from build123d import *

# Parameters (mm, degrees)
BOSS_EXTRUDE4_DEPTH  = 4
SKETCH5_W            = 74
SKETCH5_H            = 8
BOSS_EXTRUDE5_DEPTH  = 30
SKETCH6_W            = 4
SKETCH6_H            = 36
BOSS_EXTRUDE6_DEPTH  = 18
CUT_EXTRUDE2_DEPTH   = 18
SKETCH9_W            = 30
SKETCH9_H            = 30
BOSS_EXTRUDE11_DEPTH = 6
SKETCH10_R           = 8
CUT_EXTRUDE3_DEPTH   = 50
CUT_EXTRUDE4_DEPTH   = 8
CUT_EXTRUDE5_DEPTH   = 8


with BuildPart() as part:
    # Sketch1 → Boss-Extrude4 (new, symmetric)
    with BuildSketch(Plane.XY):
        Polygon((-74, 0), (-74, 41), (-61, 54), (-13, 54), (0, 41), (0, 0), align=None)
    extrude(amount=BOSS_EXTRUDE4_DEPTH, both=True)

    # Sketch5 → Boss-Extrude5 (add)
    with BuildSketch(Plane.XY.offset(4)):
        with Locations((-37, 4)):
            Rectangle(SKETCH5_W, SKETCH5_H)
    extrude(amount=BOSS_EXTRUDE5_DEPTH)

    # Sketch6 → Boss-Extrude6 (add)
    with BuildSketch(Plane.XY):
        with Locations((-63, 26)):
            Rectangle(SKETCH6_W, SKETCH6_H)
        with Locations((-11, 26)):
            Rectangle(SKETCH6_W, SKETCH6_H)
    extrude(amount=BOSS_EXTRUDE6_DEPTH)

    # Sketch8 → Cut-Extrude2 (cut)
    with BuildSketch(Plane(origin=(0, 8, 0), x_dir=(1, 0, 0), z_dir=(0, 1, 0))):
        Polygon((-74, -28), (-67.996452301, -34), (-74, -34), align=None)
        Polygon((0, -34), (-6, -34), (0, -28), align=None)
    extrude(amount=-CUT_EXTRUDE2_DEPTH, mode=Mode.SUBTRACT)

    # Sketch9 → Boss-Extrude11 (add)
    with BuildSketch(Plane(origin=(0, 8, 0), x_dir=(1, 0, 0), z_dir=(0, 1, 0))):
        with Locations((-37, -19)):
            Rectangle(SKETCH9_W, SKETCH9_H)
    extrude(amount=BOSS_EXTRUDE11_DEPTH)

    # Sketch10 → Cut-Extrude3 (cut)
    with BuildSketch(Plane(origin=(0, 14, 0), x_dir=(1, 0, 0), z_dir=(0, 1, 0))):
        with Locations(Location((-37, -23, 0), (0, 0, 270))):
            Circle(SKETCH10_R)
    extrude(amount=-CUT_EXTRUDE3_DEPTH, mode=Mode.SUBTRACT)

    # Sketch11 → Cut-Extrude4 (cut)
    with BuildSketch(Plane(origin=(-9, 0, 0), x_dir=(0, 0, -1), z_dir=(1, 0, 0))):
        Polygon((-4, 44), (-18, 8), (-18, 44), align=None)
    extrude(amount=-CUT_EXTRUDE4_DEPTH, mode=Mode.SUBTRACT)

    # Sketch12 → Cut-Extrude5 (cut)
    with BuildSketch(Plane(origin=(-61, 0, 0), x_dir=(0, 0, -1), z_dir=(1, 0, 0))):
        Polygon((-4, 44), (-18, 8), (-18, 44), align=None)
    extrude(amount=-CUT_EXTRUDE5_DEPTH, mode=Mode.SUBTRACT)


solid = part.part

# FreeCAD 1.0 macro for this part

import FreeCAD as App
import Part
import Sketcher
Q = App.Units.Quantity


def add_polygon(sketch, points):
    """Adds a closed chain of lines whose ends are joined by coincident constraints."""
    first, n = sketch.GeometryCount, len(points)
    for a, b in zip(points, points[1:] + points[:1]):
        sketch.addGeometry(Part.LineSegment(App.Vector(*a, 0), App.Vector(*b, 0)), False)
    for i in range(n):
        sketch.addConstraint(Sketcher.Constraint("Coincident", first + i, 2, first + (i + 1) % n, 1))

doc = App.newDocument("Part")
body = doc.addObject("PartDesign::Body", "Body")

sketch1 = body.newObject("Sketcher::SketchObject", "Sketch")
sketch1.AttachmentSupport = (doc.getObject("XY_Plane"), [""])
sketch1.MapMode = "FlatFace"
add_polygon(sketch1, [(-74, 41), (-74, 0), (0, 0), (0, 41), (-13, 54), (-61, 54)])
sketch1.addConstraint(Sketcher.Constraint("Vertical", 0))
sketch1.addConstraint(Sketcher.Constraint("Horizontal", 1))
sketch1.addConstraint(Sketcher.Constraint("Vertical", 2))
sketch1.addConstraint(Sketcher.Constraint("Horizontal", 4))
sketch1.addConstraint(Sketcher.Constraint("Coincident", 1, 2, -1, 1))
sketch1.addConstraint(Sketcher.Constraint("Perpendicular", 3, 5))
sketch1.addConstraint(Sketcher.Constraint("Horizontal", 2, 2, 5, 2))
sketch1.addConstraint(Sketcher.Constraint("Equal", 3, 5))
sketch1.addConstraint(Sketcher.Constraint("DistanceX", 1, 1, 1, 2, Q("74 mm")))
sketch1.addConstraint(Sketcher.Constraint("DistanceX", 4, 2, 4, 1, Q("48 mm")))
sketch1.addConstraint(Sketcher.Constraint("DistanceY", 0, 2, 0, 1, Q("41 mm")))
pad1 = body.newObject("PartDesign::Pad", "Pad")
pad1.Profile = sketch1
pad1.Length = 8
pad1.Midplane = True

sketch2 = body.newObject("Sketcher::SketchObject", "Sketch001")
sketch2.AttachmentSupport = (doc.getObject("XY_Plane"), [""])
sketch2.MapMode = "FlatFace"
sketch2.AttachmentOffset = App.Placement(App.Vector(0, 0, 4), App.Rotation())
add_polygon(sketch2, [(-74, 8), (-74, 0), (0, 0), (0, 8)])
sketch2.addConstraint(Sketcher.Constraint("Vertical", 0))
sketch2.addConstraint(Sketcher.Constraint("Horizontal", 1))
sketch2.addConstraint(Sketcher.Constraint("Vertical", 2))
sketch2.addConstraint(Sketcher.Constraint("Horizontal", 3))
sketch2.addConstraint(Sketcher.Constraint("Coincident", 1, 2, -1, 1))
sketch2.addConstraint(Sketcher.Constraint("DistanceX", 1, 1, 1, 2, Q("74 mm")))
sketch2.addConstraint(Sketcher.Constraint("DistanceY", 0, 2, 0, 1, Q("8 mm")))
pad2 = body.newObject("PartDesign::Pad", "Pad001")
pad2.Profile = sketch2
pad2.Length = 30

sketch3 = body.newObject("Sketcher::SketchObject", "Sketch002")
sketch3.AttachmentSupport = (doc.getObject("XY_Plane"), [""])
sketch3.MapMode = "FlatFace"
add_polygon(sketch3, [(-65, 44), (-65, 8), (-61, 8), (-61, 44)])
add_polygon(sketch3, [(-13, 44), (-13, 8), (-9, 8), (-9, 44)])
sketch3.addConstraint(Sketcher.Constraint("Vertical", 0))
sketch3.addConstraint(Sketcher.Constraint("Horizontal", 1))
sketch3.addConstraint(Sketcher.Constraint("Vertical", 2))
sketch3.addConstraint(Sketcher.Constraint("Horizontal", 3))
sketch3.addConstraint(Sketcher.Constraint("Vertical", 4))
sketch3.addConstraint(Sketcher.Constraint("Horizontal", 5))
sketch3.addConstraint(Sketcher.Constraint("Vertical", 6))
sketch3.addConstraint(Sketcher.Constraint("Horizontal", 7))
sketch3.addConstraint(Sketcher.Constraint("Horizontal", 1, 2, 4, 2))
sketch3.addConstraint(Sketcher.Constraint("Horizontal", 3, 2, 6, 2))
sketch3.addConstraint(Sketcher.Constraint("Equal", 3, 5))
sketch3.addConstraint(Sketcher.Constraint("DistanceX", 1, 1, 1, 2, Q("4 mm")))
sketch3.addConstraint(Sketcher.Constraint("DistanceY", 0, 2, 0, 1, Q("36 mm")))
sketch3.addConstraint(Sketcher.Constraint("DistanceX", 0, 2, -1, 1, Q("65 mm")))
sketch3.addConstraint(Sketcher.Constraint("DistanceY", -1, 1, 0, 2, Q("8 mm")))
sketch3.addConstraint(Sketcher.Constraint("DistanceX", 4, 2, -1, 1, Q("13 mm")))
pad3 = body.newObject("PartDesign::Pad", "Pad002")
pad3.Profile = sketch3
pad3.Length = 18

sketch4 = body.newObject("Sketcher::SketchObject", "Sketch003")
sketch4.AttachmentSupport = (doc.getObject("XZ_Plane"), [""])
sketch4.MapMode = "FlatFace"
sketch4.AttachmentOffset = App.Placement(App.Vector(0, 0, -8), App.Rotation())
add_polygon(sketch4, [(-68, 34), (-74, 28), (-74, 34)])
add_polygon(sketch4, [(-6, 34), (0, 34), (0, 28)])
sketch4.addConstraint(Sketcher.Constraint("Vertical", 1))
sketch4.addConstraint(Sketcher.Constraint("Horizontal", 2))
sketch4.addConstraint(Sketcher.Constraint("Horizontal", 3))
sketch4.addConstraint(Sketcher.Constraint("Vertical", 4))
sketch4.addConstraint(Sketcher.Constraint("PointOnObject", 3, 2, -2))
sketch4.addConstraint(Sketcher.Constraint("Horizontal", 2, 2, 3, 2))
sketch4.addConstraint(Sketcher.Constraint("Horizontal", 0, 2, 4, 2))
sketch4.addConstraint(Sketcher.Constraint("Equal", 3, 1))
sketch4.addConstraint(Sketcher.Constraint("DistanceX", 3, 1, 3, 2, Q("6 mm")))
sketch4.addConstraint(Sketcher.Constraint("DistanceX", 0, 2, -1, 1, Q("74 mm")))
sketch4.addConstraint(Sketcher.Constraint("DistanceY", -1, 1, 0, 2, Q("28 mm")))
sketch4.addConstraint(Sketcher.Constraint("Distance", 0, Q("8.48779 mm")))
pocket1 = body.newObject("PartDesign::Pocket", "Pocket")
pocket1.Profile = sketch4
pocket1.Length = 18
pocket1.Reversed = True

sketch5 = body.newObject("Sketcher::SketchObject", "Sketch004")
sketch5.AttachmentSupport = (doc.getObject("XZ_Plane"), [""])
sketch5.MapMode = "FlatFace"
sketch5.AttachmentOffset = App.Placement(App.Vector(0, 0, -8), App.Rotation())
add_polygon(sketch5, [(-52, 4), (-52, 34), (-22, 34), (-22, 4)])
sketch5.addConstraint(Sketcher.Constraint("Vertical", 0))
sketch5.addConstraint(Sketcher.Constraint("Horizontal", 1))
sketch5.addConstraint(Sketcher.Constraint("Vertical", 2))
sketch5.addConstraint(Sketcher.Constraint("Horizontal", 3))
sketch5.addConstraint(Sketcher.Constraint("Equal", 3, 0))
sketch5.addConstraint(Sketcher.Constraint("DistanceX", 1, 1, 1, 2, Q("30 mm")))
sketch5.addConstraint(Sketcher.Constraint("DistanceX", 0, 2, -1, 1, Q("52 mm")))
sketch5.addConstraint(Sketcher.Constraint("DistanceY", -1, 1, 0, 2, Q("34 mm")))
pad4 = body.newObject("PartDesign::Pad", "Pad003")
pad4.Profile = sketch5
pad4.Length = 6
pad4.Reversed = True

sketch6 = body.newObject("Sketcher::SketchObject", "Sketch005")
sketch6.AttachmentSupport = (doc.getObject("XZ_Plane"), [""])
sketch6.MapMode = "FlatFace"
sketch6.AttachmentOffset = App.Placement(App.Vector(0, 0, -14), App.Rotation())
sketch6.addGeometry(Part.Circle(App.Vector(-37, 23, 0), App.Vector(0, 0, 1), 8), False)
sketch6.addConstraint(Sketcher.Constraint("Diameter", 0, Q("16 mm")))
sketch6.addConstraint(Sketcher.Constraint("DistanceX", 0, 3, -1, 1, Q("37 mm")))
sketch6.addConstraint(Sketcher.Constraint("DistanceY", -1, 1, 0, 3, Q("23 mm")))
pocket2 = body.newObject("PartDesign::Pocket", "Pocket001")
pocket2.Profile = sketch6
pocket2.Length = 50
pocket2.Reversed = True

sketch7 = body.newObject("Sketcher::SketchObject", "Sketch006")
sketch7.AttachmentSupport = (doc.getObject("YZ_Plane"), [""])
sketch7.MapMode = "FlatFace"
sketch7.AttachmentOffset = App.Placement(App.Vector(0, 0, -9), App.Rotation())
add_polygon(sketch7, [(8, 18), (44, 4), (44, 18)])
sketch7.addConstraint(Sketcher.Constraint("Vertical", 1))
sketch7.addConstraint(Sketcher.Constraint("Horizontal", 2))
sketch7.addConstraint(Sketcher.Constraint("DistanceX", 2, 2, 2, 1, Q("36 mm")))
sketch7.addConstraint(Sketcher.Constraint("DistanceY", 1, 1, 1, 2, Q("14 mm")))
sketch7.addConstraint(Sketcher.Constraint("DistanceX", -1, 1, 0, 2, Q("44 mm")))
sketch7.addConstraint(Sketcher.Constraint("DistanceY", -1, 1, 0, 2, Q("4 mm")))
pocket3 = body.newObject("PartDesign::Pocket", "Pocket002")
pocket3.Profile = sketch7
pocket3.Length = 8

sketch8 = body.newObject("Sketcher::SketchObject", "Sketch007")
sketch8.AttachmentSupport = (doc.getObject("YZ_Plane"), [""])
sketch8.MapMode = "FlatFace"
sketch8.AttachmentOffset = App.Placement(App.Vector(0, 0, -61), App.Rotation())
add_polygon(sketch8, [(8, 18), (44, 4), (44, 18)])
sketch8.addConstraint(Sketcher.Constraint("Vertical", 1))
sketch8.addConstraint(Sketcher.Constraint("Horizontal", 2))
sketch8.addConstraint(Sketcher.Constraint("DistanceX", 2, 2, 2, 1, Q("36 mm")))
sketch8.addConstraint(Sketcher.Constraint("DistanceY", 1, 1, 1, 2, Q("14 mm")))
sketch8.addConstraint(Sketcher.Constraint("DistanceX", -1, 1, 0, 2, Q("44 mm")))
sketch8.addConstraint(Sketcher.Constraint("DistanceY", -1, 1, 0, 2, Q("4 mm")))
pocket4 = body.newObject("PartDesign::Pocket", "Pocket003")
pocket4.Profile = sketch8
pocket4.Length = 8

doc.recompute()
